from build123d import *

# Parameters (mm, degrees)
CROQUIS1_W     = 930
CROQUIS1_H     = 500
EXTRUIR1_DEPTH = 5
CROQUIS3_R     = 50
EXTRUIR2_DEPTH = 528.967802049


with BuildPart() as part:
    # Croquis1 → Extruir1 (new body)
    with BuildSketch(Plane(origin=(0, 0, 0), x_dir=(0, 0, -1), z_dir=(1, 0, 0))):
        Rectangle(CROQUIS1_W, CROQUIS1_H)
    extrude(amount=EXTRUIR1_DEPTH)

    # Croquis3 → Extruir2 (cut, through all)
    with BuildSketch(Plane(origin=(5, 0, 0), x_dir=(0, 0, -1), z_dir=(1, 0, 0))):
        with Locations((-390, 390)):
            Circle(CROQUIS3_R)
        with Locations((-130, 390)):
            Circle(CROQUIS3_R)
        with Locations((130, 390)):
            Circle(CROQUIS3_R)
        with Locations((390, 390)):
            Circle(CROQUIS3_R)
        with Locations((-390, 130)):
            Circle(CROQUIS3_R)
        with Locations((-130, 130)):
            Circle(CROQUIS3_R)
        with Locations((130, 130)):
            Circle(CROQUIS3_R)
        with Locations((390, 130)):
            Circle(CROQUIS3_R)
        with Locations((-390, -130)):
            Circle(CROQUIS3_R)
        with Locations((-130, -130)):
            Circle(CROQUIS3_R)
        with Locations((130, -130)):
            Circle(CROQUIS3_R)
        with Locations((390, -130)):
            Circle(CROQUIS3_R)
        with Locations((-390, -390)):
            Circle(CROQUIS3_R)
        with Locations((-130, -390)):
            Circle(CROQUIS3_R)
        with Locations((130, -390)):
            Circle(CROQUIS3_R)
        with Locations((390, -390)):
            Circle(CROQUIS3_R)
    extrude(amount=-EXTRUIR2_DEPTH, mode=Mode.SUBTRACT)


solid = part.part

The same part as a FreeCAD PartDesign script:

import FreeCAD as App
import Part
import Sketcher
Q = App.Units.Quantity


def add_polygon(sketch, points):
    """Adds a closed chain of lines whose ends are joined by coincident constraints."""
    first, n = sketch.GeometryCount, len(points)
    for a, b in zip(points, points[1:] + points[:1]):
        sketch.addGeometry(Part.LineSegment(App.Vector(*a, 0), App.Vector(*b, 0)), False)
    for i in range(n):
        sketch.addConstraint(Sketcher.Constraint("Coincident", first + i, 2, first + (i + 1) % n, 1))

doc = App.newDocument("Part")
body = doc.addObject("PartDesign::Body", "Body")

# Sketch on YZ plane
sketch1 = doc.addObject("Sketcher::SketchObject", "Sketch")
body.addObject(sketch1)
sketch1.AttachmentSupport = (doc.YZ_Plane, [""])
sketch1.MapMode = "FlatFace"
add_polygon(sketch1, [(250, 465), (-250, 465), (-250, -465), (250, -465)])  # lines 0-3
sketch1.addConstraint(Sketcher.Constraint("Horizontal", 0))
sketch1.addConstraint(Sketcher.Constraint("Vertical", 1))
sketch1.addConstraint(Sketcher.Constraint("Horizontal", 2))
sketch1.addConstraint(Sketcher.Constraint("Vertical", 3))
sketch1.addConstraint(Sketcher.Constraint("Symmetric", 0, 2, 2, 2, -1, 1))
sketch1.addConstraint(Sketcher.Constraint("DistanceX", 0, 2, 0, 1, Q("500 mm")))
sketch1.addConstraint(Sketcher.Constraint("DistanceY", 1, 2, 1, 1, Q("930 mm")))
pad1 = doc.addObject("PartDesign::Pad", "Pad")
body.addObject(pad1)
pad1.Profile = sketch1
pad1.Length = 5

# Sketch on YZ plane
sketch2 = doc.addObject("Sketcher::SketchObject", "Sketch001")
body.addObject(sketch2)
sketch2.AttachmentSupport = (doc.YZ_Plane, [""])
sketch2.MapMode = "FlatFace"
sketch2.AttachmentOffset = App.Placement(App.Vector(0, 0, 5), App.Rotation())
sketch2.addGeometry(Part.Circle(App.Vector(390, 390, 0), App.Vector(0, 0, 1), 50), False)
sketch2.addGeometry(Part.Circle(App.Vector(390, 130, 0), App.Vector(0, 0, 1), 50), False)
sketch2.addGeometry(Part.Circle(App.Vector(390, -130, 0), App.Vector(0, 0, 1), 50), False)
sketch2.addGeometry(Part.Circle(App.Vector(390, -390, 0), App.Vector(0, 0, 1), 50), False)
sketch2.addGeometry(Part.Circle(App.Vector(130, 390, 0), App.Vector(0, 0, 1), 50), False)
sketch2.addGeometry(Part.Circle(App.Vector(130, 130, 0), App.Vector(0, 0, 1), 50), False)
sketch2.addGeometry(Part.Circle(App.Vector(130, -130, 0), App.Vector(0, 0, 1), 50), False)
sketch2.addGeometry(Part.Circle(App.Vector(130, -390, 0), App.Vector(0, 0, 1), 50), False)
sketch2.addGeometry(Part.Circle(App.Vector(-130, 390, 0), App.Vector(0, 0, 1), 50), False)
sketch2.addGeometry(Part.Circle(App.Vector(-130, 130, 0), App.Vector(0, 0, 1), 50), False)
sketch2.addGeometry(Part.Circle(App.Vector(-130, -130, 0), App.Vector(0, 0, 1), 50), False)
sketch2.addGeometry(Part.Circle(App.Vector(-130, -390, 0), App.Vector(0, 0, 1), 50), False)
sketch2.addGeometry(Part.Circle(App.Vector(-390, 390, 0), App.Vector(0, 0, 1), 50), False)
sketch2.addGeometry(Part.Circle(App.Vector(-390, 130, 0), App.Vector(0, 0, 1), 50), False)
sketch2.addGeometry(Part.Circle(App.Vector(-390, -130, 0), App.Vector(0, 0, 1), 50), False)
sketch2.addGeometry(Part.Circle(App.Vector(-390, -390, 0), App.Vector(0, 0, 1), 50), False)
sketch2.addConstraint(Sketcher.Constraint("Equal", 0, 1))
sketch2.addConstraint(Sketcher.Constraint("Equal", 1, 2))
sketch2.addConstraint(Sketcher.Constraint("Equal", 2, 3))
sketch2.addConstraint(Sketcher.Constraint("Equal", 3, 4))
sketch2.addConstraint(Sketcher.Constraint("Equal", 4, 5))
sketch2.addConstraint(Sketcher.Constraint("Equal", 5, 6))
sketch2.addConstraint(Sketcher.Constraint("Equal", 6, 7))
sketch2.addConstraint(Sketcher.Constraint("Equal", 7, 8))
sketch2.addConstraint(Sketcher.Constraint("Equal", 8, 9))
sketch2.addConstraint(Sketcher.Constraint("Equal", 9, 10))
sketch2.addConstraint(Sketcher.Constraint("Equal", 10, 11))
sketch2.addConstraint(Sketcher.Constraint("Equal", 11, 12))
sketch2.addConstraint(Sketcher.Constraint("Equal", 12, 13))
sketch2.addConstraint(Sketcher.Constraint("Equal", 13, 14))
sketch2.addConstraint(Sketcher.Constraint("Equal", 14, 15))
sketch2.addConstraint(Sketcher.Constraint("Symmetric", 7, 3, 8, 3, -1, 1))
sketch2.addConstraint(Sketcher.Constraint("Symmetric", 6, 3, 9, 3, -1, 1))
sketch2.addConstraint(Sketcher.Constraint("Symmetric", 5, 3, 10, 3, -1, 1))
sketch2.addConstraint(Sketcher.Constraint("Symmetric", 4, 3, 11, 3, -1, 1))
sketch2.addConstraint(Sketcher.Constraint("Symmetric", 3, 3, 12, 3, -1, 1))
sketch2.addConstraint(Sketcher.Constraint("Symmetric", 2, 3, 13, 3, -1, 1))
sketch2.addConstraint(Sketcher.Constraint("Symmetric", 1, 3, 14, 3, -1, 1))
sketch2.addConstraint(Sketcher.Constraint("Symmetric", 0, 3, 15, 3, -1, 1))
sketch2.addConstraint(Sketcher.Constraint("Symmetric", 4, 3, 8, 3, -2))
sketch2.addConstraint(Sketcher.Constraint("Symmetric", 5, 3, 9, 3, -2))
sketch2.addConstraint(Sketcher.Constraint("Symmetric", 0, 3, 12, 3, -2))
sketch2.addConstraint(Sketcher.Constraint("Symmetric", 1, 3, 13, 3, -2))
sketch2.addConstraint(Sketcher.Constraint("Horizontal", 0, 3, 4, 3))
sketch2.addConstraint(Sketcher.Constraint("Horizontal", 1, 3, 5, 3))
sketch2.addConstraint(Sketcher.Constraint("Vertical", 0, 3, 1, 3))
sketch2.addConstraint(Sketcher.Constraint("Vertical", 4, 3, 5, 3))
sketch2.addConstraint(Sketcher.Constraint("Diameter", 0, Q("100 mm")))
sketch2.addConstraint(Sketcher.Constraint("DistanceX", -1, 1, 0, 3, Q("390 mm")))
sketch2.addConstraint(Sketcher.Constraint("DistanceY", -1, 1, 0, 3, Q("390 mm")))
sketch2.addConstraint(Sketcher.Constraint("DistanceY", -1, 1, 1, 3, Q("130 mm")))
sketch2.addConstraint(Sketcher.Constraint("DistanceX", -1, 1, 4, 3, Q("130 mm")))
pocket1 = doc.addObject("PartDesign::Pocket", "Pocket")
body.addObject(pocket1)
pocket1.Profile = sketch2
pocket1.Type = "ThroughAll"

doc.recompute()
